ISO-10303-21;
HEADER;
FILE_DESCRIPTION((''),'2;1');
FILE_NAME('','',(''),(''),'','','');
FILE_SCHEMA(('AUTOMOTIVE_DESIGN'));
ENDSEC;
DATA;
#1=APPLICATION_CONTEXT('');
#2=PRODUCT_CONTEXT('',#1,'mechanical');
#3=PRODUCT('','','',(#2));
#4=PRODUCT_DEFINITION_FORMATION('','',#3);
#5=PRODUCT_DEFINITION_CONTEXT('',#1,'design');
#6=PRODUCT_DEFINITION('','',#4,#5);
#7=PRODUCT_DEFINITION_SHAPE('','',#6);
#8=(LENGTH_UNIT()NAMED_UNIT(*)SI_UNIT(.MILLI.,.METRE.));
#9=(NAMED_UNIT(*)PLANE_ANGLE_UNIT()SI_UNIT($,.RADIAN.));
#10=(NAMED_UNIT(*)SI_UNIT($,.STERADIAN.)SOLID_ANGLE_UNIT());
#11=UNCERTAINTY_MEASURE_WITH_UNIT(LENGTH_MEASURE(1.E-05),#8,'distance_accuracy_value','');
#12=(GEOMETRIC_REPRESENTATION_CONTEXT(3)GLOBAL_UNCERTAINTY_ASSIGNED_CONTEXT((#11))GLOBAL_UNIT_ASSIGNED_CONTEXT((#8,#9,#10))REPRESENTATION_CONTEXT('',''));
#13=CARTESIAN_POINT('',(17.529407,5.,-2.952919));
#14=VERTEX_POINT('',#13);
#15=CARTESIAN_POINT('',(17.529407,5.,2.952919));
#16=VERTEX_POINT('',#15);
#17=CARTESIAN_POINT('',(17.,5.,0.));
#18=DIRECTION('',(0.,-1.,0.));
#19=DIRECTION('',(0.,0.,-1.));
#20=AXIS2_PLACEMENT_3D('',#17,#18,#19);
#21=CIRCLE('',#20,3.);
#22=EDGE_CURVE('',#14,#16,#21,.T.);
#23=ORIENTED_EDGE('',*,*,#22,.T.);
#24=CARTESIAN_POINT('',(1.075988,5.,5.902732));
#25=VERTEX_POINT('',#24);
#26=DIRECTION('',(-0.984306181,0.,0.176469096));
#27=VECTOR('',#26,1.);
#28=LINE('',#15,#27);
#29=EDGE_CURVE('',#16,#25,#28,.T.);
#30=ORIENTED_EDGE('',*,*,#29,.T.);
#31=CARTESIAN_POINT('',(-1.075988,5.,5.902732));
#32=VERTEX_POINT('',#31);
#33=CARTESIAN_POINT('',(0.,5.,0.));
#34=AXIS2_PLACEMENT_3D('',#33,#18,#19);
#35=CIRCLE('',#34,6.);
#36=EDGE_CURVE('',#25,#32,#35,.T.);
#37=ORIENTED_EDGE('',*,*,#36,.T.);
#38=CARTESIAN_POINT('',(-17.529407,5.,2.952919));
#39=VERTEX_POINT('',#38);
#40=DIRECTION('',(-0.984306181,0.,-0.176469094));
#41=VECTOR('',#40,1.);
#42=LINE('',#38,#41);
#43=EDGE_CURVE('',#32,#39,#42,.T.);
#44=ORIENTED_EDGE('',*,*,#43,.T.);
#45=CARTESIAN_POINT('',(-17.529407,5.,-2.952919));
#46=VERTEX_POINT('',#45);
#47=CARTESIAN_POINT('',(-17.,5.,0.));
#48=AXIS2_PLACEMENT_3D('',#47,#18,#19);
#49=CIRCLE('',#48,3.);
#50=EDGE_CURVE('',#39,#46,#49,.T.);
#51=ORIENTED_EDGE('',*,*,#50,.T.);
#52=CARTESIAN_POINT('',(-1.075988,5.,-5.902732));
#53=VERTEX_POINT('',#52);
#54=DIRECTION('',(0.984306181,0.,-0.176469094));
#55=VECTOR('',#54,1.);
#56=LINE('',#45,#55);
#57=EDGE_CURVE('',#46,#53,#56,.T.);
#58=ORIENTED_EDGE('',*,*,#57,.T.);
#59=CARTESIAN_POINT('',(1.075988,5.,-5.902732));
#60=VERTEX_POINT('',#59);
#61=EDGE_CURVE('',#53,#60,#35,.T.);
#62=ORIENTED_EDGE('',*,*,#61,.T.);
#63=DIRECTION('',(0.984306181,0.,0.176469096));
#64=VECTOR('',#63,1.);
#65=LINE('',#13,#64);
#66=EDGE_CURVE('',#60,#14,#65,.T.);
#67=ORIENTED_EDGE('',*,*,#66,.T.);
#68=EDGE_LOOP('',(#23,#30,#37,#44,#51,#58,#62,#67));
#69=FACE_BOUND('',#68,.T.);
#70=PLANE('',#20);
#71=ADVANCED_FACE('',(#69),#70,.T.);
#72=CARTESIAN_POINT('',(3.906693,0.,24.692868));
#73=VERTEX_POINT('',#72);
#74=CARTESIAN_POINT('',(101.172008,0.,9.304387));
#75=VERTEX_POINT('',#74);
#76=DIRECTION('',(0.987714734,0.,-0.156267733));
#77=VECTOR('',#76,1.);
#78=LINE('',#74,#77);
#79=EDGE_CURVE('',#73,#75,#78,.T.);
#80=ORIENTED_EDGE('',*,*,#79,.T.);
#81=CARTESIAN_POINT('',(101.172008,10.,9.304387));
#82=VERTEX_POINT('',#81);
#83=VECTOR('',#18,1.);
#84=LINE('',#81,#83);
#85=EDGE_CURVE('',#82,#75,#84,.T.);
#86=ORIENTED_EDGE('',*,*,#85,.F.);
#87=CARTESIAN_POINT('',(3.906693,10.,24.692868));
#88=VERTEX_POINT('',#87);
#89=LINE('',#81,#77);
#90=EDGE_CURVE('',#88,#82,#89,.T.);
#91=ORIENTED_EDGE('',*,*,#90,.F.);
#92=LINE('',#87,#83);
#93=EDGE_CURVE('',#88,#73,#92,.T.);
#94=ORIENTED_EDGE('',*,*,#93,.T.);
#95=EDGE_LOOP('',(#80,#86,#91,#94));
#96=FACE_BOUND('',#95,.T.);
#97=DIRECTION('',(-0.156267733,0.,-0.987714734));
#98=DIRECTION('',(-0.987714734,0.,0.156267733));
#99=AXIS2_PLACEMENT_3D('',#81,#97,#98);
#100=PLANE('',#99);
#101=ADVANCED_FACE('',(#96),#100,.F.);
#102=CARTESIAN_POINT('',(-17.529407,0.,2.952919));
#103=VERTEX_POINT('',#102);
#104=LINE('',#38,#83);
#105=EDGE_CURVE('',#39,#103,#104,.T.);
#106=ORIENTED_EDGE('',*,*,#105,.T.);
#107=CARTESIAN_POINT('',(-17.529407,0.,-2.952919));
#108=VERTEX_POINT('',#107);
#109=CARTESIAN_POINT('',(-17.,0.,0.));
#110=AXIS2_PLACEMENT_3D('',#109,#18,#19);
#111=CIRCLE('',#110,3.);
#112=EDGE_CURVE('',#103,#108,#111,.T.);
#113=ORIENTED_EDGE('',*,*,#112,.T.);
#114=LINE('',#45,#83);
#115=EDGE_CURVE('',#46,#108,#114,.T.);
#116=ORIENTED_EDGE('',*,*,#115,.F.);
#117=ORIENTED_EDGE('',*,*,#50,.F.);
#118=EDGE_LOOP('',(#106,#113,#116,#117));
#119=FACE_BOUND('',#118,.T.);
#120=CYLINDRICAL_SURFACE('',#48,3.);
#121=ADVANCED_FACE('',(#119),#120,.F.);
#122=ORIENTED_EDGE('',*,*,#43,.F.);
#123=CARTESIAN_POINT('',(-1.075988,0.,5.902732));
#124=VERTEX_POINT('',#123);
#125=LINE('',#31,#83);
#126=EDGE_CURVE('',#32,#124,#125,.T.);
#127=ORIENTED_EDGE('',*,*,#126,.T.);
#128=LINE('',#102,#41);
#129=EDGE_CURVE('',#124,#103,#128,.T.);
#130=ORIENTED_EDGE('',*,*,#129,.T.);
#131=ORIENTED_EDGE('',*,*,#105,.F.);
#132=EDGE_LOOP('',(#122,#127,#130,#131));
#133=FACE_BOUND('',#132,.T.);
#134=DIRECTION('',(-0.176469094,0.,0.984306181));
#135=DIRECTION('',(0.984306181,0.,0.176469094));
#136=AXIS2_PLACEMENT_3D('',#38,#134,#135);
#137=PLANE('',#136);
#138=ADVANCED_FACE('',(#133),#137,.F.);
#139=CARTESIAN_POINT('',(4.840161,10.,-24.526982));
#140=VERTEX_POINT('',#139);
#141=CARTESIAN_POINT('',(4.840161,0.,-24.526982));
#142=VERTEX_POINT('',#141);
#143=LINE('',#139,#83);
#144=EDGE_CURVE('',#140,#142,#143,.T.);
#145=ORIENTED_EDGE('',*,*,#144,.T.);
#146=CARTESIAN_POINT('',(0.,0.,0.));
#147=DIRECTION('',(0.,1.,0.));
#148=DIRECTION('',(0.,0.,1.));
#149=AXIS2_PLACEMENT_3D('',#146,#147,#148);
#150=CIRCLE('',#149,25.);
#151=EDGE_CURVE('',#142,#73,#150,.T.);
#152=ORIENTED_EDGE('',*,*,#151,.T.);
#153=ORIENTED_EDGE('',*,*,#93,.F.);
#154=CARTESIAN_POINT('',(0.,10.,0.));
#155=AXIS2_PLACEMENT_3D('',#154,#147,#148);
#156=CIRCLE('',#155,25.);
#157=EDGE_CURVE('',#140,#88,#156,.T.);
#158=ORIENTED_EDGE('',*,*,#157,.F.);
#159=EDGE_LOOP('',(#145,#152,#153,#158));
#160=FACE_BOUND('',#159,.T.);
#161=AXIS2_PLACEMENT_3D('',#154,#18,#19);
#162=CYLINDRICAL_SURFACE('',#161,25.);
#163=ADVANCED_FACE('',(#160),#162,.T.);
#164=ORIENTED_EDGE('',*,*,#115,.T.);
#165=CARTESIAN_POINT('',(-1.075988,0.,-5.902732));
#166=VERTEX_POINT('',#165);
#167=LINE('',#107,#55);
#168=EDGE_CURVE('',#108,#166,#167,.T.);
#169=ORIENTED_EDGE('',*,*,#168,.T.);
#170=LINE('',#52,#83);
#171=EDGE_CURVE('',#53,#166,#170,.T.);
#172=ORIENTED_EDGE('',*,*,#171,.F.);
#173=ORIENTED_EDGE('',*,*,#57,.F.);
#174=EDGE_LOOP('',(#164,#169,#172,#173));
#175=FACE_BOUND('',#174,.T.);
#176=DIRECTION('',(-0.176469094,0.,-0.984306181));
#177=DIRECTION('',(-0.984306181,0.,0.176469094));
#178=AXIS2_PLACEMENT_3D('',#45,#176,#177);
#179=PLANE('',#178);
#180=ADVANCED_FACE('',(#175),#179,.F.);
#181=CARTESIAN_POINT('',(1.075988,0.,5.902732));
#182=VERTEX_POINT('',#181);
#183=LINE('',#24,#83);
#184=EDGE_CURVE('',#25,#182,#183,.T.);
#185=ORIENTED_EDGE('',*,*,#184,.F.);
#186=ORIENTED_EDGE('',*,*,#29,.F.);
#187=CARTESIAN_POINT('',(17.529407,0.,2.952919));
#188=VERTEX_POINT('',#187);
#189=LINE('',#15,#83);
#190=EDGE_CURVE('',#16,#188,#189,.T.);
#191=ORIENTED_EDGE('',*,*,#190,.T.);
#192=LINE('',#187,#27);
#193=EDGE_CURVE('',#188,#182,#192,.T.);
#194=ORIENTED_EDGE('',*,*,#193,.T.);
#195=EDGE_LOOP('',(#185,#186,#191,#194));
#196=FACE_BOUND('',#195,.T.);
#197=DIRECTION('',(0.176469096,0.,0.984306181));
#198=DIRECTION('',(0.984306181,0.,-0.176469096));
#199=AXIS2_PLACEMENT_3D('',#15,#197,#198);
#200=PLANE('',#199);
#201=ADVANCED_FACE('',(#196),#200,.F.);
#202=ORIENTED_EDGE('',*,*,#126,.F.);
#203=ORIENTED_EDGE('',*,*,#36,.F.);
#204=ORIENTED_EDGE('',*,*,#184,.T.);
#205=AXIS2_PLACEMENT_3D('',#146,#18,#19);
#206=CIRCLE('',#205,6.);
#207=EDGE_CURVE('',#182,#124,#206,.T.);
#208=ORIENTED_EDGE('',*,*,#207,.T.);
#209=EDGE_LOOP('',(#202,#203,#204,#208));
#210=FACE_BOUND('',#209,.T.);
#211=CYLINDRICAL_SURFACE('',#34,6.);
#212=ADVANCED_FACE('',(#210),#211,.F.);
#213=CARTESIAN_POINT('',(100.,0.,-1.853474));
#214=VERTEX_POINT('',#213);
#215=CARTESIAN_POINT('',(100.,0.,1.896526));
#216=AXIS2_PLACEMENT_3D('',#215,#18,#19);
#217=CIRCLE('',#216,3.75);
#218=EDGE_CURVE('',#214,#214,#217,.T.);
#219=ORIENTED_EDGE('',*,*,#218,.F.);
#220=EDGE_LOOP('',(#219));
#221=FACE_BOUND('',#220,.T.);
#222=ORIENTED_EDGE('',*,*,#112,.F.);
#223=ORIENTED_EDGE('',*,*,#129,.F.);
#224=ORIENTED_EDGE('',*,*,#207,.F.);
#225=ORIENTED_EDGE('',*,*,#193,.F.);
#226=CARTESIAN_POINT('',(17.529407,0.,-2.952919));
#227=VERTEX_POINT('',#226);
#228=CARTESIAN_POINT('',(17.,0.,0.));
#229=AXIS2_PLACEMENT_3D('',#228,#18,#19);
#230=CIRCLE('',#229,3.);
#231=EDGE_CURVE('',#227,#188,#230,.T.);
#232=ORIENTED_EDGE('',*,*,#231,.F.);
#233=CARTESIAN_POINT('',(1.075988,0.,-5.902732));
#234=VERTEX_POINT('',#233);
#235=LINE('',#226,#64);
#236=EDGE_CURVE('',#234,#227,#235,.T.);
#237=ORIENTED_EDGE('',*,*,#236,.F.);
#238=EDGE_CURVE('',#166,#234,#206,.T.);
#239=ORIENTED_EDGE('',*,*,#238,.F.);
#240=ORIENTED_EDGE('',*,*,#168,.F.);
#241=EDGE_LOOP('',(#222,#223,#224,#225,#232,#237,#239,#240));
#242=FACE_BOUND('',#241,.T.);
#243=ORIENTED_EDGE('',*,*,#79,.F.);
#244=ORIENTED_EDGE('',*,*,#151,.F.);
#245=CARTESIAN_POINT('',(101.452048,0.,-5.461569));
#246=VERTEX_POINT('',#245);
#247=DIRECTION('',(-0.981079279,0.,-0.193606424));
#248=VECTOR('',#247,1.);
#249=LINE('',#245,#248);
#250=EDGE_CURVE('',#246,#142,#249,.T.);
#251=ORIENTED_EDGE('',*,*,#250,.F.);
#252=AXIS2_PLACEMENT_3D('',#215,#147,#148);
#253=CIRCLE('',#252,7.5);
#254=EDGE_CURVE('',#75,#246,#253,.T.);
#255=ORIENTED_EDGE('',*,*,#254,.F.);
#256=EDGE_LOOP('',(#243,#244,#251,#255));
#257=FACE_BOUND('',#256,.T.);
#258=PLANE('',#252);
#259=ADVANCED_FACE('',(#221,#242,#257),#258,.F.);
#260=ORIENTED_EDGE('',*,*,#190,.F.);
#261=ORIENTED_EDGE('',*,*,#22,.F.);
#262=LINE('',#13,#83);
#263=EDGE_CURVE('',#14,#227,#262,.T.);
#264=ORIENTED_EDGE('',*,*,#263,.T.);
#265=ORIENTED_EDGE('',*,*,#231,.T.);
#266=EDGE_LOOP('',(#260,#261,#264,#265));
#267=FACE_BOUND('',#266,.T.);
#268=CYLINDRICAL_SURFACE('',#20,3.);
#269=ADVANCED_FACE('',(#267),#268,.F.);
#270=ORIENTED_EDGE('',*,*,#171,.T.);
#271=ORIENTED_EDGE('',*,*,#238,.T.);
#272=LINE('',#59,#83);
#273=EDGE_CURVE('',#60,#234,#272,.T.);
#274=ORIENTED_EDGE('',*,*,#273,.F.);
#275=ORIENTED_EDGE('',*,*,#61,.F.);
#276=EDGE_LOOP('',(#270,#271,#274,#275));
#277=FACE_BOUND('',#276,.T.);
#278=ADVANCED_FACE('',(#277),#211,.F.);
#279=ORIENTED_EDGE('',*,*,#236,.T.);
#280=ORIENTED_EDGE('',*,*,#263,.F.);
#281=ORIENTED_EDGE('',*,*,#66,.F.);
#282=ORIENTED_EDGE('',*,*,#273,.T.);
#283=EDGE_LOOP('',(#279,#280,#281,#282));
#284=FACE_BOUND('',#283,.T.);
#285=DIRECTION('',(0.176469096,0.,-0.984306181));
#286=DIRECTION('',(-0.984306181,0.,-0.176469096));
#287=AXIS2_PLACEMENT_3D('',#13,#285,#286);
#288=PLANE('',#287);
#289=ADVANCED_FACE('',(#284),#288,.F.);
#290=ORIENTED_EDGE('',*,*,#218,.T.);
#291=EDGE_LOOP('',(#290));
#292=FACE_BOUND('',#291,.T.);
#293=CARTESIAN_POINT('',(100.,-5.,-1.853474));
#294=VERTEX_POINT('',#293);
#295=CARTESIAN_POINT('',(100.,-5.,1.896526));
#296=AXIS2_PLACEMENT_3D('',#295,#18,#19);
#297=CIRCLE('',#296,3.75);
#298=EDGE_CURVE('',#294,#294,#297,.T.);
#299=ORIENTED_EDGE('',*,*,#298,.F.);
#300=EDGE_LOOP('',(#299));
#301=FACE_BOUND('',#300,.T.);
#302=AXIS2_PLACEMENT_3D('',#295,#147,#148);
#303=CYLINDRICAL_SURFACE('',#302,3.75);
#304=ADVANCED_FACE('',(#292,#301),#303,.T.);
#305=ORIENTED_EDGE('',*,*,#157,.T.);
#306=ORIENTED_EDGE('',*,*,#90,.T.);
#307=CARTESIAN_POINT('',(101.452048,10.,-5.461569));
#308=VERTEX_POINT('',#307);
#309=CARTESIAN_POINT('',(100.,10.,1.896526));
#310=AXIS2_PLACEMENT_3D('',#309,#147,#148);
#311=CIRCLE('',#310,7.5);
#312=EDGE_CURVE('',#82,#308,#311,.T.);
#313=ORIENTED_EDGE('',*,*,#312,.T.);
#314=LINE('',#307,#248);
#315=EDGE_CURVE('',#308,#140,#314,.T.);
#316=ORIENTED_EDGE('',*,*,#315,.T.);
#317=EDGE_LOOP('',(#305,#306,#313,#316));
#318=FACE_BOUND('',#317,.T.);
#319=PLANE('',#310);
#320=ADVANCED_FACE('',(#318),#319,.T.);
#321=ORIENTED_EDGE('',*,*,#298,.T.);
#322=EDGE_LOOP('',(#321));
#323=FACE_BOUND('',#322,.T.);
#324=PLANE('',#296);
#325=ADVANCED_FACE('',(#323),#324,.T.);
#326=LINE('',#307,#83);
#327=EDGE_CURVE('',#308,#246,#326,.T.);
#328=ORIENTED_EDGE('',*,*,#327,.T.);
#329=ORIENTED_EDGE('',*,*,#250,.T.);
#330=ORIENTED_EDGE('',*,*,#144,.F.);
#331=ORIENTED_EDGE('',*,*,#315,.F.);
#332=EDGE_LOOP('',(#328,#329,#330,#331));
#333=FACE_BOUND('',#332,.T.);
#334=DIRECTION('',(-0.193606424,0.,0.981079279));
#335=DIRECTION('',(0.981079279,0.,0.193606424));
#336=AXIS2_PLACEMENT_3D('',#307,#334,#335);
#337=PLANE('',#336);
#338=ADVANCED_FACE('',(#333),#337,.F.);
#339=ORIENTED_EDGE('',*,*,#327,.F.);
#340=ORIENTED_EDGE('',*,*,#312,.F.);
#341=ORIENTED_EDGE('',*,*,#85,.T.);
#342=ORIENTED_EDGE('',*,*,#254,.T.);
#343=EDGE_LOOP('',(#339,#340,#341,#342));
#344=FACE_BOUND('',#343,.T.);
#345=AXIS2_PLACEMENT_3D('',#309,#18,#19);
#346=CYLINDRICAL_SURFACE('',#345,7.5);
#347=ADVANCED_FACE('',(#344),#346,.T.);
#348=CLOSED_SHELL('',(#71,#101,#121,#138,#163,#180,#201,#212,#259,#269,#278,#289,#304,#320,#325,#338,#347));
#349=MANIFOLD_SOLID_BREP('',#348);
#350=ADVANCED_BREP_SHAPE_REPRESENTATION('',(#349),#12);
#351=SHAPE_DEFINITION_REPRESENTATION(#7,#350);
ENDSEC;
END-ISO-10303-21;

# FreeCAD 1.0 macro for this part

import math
import FreeCAD as App
import Part
import Sketcher

V = App.Vector

doc = App.newDocument("Part")
body = doc.addObject("PartDesign::Body", "Body")

# Sketch on XZ plane
sketch1 = body.newObject("Sketcher::SketchObject", "Sketch")
sketch1.AttachmentSupport = (doc.getObject("XZ_Plane"), [""])
sketch1.MapMode = "FlatFace"
sketch1.addGeometry([
    Part.LineSegment(V(101, -5, 0), V(5, -25, 0)),
    Part.ArcOfCircle(Part.Circle(V(0, 0, 0), V(0, 0, 1), 25), math.radians(81), math.radians(281)),
    Part.LineSegment(V(4, 25, 0), V(101, 9, 0)),
    Part.ArcOfCircle(Part.Circle(V(100, 2, 0), V(0, 0, 1), 8), math.radians(-79), math.radians(81)),
], False)
sketch1.addConstraint([
    Sketcher.Constraint("Tangent", 0, 2, 1, 2),
    Sketcher.Constraint("Tangent", 1, 1, 2, 1),
    Sketcher.Constraint("Tangent", 2, 2, 3, 2),
    Sketcher.Constraint("Tangent", 3, 1, 0, 1),
    Sketcher.Constraint("Coincident", 1, 3, -1, 1),
    Sketcher.Constraint("Radius", 1, 25.0),
    Sketcher.Constraint("Radius", 3, 7.5),
    Sketcher.Constraint("DistanceX", -1, 1, 3, 3, 100.0),
    Sketcher.Constraint("DistanceX", -1, 1, 0, 2, 4.840161),
])
pad1 = body.newObject("PartDesign::Pad", "Pad")
pad1.Profile = sketch1
pad1.Length = 10
pad1.Reversed = True

# Sketch on XZ plane
sketch2 = body.newObject("Sketcher::SketchObject", "Sketch001")
sketch2.AttachmentSupport = (doc.getObject("XZ_Plane"), [""])
sketch2.MapMode = "FlatFace"
sketch2.addGeometry([
    Part.Circle(V(100, 1.9, 0), V(0, 0, 1), 3.8),  # 0
    Part.LineSegment(V(1.1, -5.9, 0), V(17.5, -3, 0)),  # 1
    Part.ArcOfCircle(Part.Circle(V(17, 0, 0), V(0, 0, 1), 3), math.radians(-80), math.radians(80)),  # 2
    Part.LineSegment(V(17.5, 3, 0), V(1.1, 5.9, 0)),  # 3
    Part.ArcOfCircle(Part.Circle(V(0, 0, 0), V(0, 0, 1), 6), math.radians(80), math.radians(100)),  # 4
    Part.LineSegment(V(-1.1, 5.9, 0), V(-17.5, 3, 0)),  # 5
    Part.ArcOfCircle(Part.Circle(V(-17, 0, 0), V(0, 0, 1), 3), math.radians(100), math.radians(260)),  # 6
    Part.LineSegment(V(-17.5, -3, 0), V(-1.1, -5.9, 0)),  # 7
    Part.ArcOfCircle(Part.Circle(V(0, 0, 0), V(0, 0, 1), 6), math.radians(-100), math.radians(-80)),  # 8
], False)
sketch2.addConstraint([
    Sketcher.Constraint("Tangent", 1, 2, 2, 1),
    Sketcher.Constraint("Tangent", 2, 2, 3, 1),
    Sketcher.Constraint("Coincident", 3, 2, 4, 1),
    Sketcher.Constraint("Coincident", 4, 2, 5, 1),
    Sketcher.Constraint("Tangent", 5, 2, 6, 1),
    Sketcher.Constraint("Tangent", 6, 2, 7, 1),
    Sketcher.Constraint("Coincident", 7, 2, 8, 1),
    Sketcher.Constraint("Coincident", 8, 2, 1, 1),
    Sketcher.Constraint("Coincident", 4, 3, -1, 1),
    Sketcher.Constraint("Coincident", 8, 3, -1, 1),
    Sketcher.Constraint("Equal", 2, 6),
    Sketcher.Constraint("Equal", 4, 8),
    Sketcher.Constraint("Symmetric", 2, 3, 6, 3, -1, 1),
    Sketcher.Constraint("Symmetric", 2, 2, 5, 2, -2),
    Sketcher.Constraint("Horizontal", 7, 2, 8, 2),
    Sketcher.Constraint("Vertical", 4, 2, 7, 2),
    Sketcher.Constraint("Radius", 2, 3.0),
    Sketcher.Constraint("Radius", 4, 6.0),
    Sketcher.Constraint("Diameter", 0, 7.5),
    Sketcher.Constraint("DistanceX", -1, 1, 0, 3, 100.0),
    Sketcher.Constraint("DistanceX", -1, 1, 2, 3, 17.0),
    Sketcher.Constraint("DistanceX", -1, 1, 3, 2, 1.075988),
    Sketcher.Constraint("DistanceY", -1, 1, 0, 3, 1.896526),
])
pocket1 = body.newObject("PartDesign::Pocket", "Pocket")
pocket1.Profile = sketch2
pocket1.Length = 5

# Sketch on XZ plane
sketch3 = body.newObject("Sketcher::SketchObject", "Sketch002")
sketch3.AttachmentSupport = (doc.getObject("XZ_Plane"), [""])
sketch3.MapMode = "FlatFace"
sketch3.AttachmentOffset = App.Placement(V(0, 0, -5), App.Rotation())
sketch3.addGeometry(Part.Circle(V(100, 1.9, 0), V(0, 0, 1), 3.8), False)
sketch3.addConstraint([
    Sketcher.Constraint("Diameter", 0, 7.5),
    Sketcher.Constraint("DistanceX", -1, 1, 0, 3, 100.0),
    Sketcher.Constraint("DistanceY", -1, 1, 0, 3, 1.896526),
])
pad2 = body.newObject("PartDesign::Pad", "Pad001")
pad2.Profile = sketch3
pad2.Length = 10

doc.recompute()
